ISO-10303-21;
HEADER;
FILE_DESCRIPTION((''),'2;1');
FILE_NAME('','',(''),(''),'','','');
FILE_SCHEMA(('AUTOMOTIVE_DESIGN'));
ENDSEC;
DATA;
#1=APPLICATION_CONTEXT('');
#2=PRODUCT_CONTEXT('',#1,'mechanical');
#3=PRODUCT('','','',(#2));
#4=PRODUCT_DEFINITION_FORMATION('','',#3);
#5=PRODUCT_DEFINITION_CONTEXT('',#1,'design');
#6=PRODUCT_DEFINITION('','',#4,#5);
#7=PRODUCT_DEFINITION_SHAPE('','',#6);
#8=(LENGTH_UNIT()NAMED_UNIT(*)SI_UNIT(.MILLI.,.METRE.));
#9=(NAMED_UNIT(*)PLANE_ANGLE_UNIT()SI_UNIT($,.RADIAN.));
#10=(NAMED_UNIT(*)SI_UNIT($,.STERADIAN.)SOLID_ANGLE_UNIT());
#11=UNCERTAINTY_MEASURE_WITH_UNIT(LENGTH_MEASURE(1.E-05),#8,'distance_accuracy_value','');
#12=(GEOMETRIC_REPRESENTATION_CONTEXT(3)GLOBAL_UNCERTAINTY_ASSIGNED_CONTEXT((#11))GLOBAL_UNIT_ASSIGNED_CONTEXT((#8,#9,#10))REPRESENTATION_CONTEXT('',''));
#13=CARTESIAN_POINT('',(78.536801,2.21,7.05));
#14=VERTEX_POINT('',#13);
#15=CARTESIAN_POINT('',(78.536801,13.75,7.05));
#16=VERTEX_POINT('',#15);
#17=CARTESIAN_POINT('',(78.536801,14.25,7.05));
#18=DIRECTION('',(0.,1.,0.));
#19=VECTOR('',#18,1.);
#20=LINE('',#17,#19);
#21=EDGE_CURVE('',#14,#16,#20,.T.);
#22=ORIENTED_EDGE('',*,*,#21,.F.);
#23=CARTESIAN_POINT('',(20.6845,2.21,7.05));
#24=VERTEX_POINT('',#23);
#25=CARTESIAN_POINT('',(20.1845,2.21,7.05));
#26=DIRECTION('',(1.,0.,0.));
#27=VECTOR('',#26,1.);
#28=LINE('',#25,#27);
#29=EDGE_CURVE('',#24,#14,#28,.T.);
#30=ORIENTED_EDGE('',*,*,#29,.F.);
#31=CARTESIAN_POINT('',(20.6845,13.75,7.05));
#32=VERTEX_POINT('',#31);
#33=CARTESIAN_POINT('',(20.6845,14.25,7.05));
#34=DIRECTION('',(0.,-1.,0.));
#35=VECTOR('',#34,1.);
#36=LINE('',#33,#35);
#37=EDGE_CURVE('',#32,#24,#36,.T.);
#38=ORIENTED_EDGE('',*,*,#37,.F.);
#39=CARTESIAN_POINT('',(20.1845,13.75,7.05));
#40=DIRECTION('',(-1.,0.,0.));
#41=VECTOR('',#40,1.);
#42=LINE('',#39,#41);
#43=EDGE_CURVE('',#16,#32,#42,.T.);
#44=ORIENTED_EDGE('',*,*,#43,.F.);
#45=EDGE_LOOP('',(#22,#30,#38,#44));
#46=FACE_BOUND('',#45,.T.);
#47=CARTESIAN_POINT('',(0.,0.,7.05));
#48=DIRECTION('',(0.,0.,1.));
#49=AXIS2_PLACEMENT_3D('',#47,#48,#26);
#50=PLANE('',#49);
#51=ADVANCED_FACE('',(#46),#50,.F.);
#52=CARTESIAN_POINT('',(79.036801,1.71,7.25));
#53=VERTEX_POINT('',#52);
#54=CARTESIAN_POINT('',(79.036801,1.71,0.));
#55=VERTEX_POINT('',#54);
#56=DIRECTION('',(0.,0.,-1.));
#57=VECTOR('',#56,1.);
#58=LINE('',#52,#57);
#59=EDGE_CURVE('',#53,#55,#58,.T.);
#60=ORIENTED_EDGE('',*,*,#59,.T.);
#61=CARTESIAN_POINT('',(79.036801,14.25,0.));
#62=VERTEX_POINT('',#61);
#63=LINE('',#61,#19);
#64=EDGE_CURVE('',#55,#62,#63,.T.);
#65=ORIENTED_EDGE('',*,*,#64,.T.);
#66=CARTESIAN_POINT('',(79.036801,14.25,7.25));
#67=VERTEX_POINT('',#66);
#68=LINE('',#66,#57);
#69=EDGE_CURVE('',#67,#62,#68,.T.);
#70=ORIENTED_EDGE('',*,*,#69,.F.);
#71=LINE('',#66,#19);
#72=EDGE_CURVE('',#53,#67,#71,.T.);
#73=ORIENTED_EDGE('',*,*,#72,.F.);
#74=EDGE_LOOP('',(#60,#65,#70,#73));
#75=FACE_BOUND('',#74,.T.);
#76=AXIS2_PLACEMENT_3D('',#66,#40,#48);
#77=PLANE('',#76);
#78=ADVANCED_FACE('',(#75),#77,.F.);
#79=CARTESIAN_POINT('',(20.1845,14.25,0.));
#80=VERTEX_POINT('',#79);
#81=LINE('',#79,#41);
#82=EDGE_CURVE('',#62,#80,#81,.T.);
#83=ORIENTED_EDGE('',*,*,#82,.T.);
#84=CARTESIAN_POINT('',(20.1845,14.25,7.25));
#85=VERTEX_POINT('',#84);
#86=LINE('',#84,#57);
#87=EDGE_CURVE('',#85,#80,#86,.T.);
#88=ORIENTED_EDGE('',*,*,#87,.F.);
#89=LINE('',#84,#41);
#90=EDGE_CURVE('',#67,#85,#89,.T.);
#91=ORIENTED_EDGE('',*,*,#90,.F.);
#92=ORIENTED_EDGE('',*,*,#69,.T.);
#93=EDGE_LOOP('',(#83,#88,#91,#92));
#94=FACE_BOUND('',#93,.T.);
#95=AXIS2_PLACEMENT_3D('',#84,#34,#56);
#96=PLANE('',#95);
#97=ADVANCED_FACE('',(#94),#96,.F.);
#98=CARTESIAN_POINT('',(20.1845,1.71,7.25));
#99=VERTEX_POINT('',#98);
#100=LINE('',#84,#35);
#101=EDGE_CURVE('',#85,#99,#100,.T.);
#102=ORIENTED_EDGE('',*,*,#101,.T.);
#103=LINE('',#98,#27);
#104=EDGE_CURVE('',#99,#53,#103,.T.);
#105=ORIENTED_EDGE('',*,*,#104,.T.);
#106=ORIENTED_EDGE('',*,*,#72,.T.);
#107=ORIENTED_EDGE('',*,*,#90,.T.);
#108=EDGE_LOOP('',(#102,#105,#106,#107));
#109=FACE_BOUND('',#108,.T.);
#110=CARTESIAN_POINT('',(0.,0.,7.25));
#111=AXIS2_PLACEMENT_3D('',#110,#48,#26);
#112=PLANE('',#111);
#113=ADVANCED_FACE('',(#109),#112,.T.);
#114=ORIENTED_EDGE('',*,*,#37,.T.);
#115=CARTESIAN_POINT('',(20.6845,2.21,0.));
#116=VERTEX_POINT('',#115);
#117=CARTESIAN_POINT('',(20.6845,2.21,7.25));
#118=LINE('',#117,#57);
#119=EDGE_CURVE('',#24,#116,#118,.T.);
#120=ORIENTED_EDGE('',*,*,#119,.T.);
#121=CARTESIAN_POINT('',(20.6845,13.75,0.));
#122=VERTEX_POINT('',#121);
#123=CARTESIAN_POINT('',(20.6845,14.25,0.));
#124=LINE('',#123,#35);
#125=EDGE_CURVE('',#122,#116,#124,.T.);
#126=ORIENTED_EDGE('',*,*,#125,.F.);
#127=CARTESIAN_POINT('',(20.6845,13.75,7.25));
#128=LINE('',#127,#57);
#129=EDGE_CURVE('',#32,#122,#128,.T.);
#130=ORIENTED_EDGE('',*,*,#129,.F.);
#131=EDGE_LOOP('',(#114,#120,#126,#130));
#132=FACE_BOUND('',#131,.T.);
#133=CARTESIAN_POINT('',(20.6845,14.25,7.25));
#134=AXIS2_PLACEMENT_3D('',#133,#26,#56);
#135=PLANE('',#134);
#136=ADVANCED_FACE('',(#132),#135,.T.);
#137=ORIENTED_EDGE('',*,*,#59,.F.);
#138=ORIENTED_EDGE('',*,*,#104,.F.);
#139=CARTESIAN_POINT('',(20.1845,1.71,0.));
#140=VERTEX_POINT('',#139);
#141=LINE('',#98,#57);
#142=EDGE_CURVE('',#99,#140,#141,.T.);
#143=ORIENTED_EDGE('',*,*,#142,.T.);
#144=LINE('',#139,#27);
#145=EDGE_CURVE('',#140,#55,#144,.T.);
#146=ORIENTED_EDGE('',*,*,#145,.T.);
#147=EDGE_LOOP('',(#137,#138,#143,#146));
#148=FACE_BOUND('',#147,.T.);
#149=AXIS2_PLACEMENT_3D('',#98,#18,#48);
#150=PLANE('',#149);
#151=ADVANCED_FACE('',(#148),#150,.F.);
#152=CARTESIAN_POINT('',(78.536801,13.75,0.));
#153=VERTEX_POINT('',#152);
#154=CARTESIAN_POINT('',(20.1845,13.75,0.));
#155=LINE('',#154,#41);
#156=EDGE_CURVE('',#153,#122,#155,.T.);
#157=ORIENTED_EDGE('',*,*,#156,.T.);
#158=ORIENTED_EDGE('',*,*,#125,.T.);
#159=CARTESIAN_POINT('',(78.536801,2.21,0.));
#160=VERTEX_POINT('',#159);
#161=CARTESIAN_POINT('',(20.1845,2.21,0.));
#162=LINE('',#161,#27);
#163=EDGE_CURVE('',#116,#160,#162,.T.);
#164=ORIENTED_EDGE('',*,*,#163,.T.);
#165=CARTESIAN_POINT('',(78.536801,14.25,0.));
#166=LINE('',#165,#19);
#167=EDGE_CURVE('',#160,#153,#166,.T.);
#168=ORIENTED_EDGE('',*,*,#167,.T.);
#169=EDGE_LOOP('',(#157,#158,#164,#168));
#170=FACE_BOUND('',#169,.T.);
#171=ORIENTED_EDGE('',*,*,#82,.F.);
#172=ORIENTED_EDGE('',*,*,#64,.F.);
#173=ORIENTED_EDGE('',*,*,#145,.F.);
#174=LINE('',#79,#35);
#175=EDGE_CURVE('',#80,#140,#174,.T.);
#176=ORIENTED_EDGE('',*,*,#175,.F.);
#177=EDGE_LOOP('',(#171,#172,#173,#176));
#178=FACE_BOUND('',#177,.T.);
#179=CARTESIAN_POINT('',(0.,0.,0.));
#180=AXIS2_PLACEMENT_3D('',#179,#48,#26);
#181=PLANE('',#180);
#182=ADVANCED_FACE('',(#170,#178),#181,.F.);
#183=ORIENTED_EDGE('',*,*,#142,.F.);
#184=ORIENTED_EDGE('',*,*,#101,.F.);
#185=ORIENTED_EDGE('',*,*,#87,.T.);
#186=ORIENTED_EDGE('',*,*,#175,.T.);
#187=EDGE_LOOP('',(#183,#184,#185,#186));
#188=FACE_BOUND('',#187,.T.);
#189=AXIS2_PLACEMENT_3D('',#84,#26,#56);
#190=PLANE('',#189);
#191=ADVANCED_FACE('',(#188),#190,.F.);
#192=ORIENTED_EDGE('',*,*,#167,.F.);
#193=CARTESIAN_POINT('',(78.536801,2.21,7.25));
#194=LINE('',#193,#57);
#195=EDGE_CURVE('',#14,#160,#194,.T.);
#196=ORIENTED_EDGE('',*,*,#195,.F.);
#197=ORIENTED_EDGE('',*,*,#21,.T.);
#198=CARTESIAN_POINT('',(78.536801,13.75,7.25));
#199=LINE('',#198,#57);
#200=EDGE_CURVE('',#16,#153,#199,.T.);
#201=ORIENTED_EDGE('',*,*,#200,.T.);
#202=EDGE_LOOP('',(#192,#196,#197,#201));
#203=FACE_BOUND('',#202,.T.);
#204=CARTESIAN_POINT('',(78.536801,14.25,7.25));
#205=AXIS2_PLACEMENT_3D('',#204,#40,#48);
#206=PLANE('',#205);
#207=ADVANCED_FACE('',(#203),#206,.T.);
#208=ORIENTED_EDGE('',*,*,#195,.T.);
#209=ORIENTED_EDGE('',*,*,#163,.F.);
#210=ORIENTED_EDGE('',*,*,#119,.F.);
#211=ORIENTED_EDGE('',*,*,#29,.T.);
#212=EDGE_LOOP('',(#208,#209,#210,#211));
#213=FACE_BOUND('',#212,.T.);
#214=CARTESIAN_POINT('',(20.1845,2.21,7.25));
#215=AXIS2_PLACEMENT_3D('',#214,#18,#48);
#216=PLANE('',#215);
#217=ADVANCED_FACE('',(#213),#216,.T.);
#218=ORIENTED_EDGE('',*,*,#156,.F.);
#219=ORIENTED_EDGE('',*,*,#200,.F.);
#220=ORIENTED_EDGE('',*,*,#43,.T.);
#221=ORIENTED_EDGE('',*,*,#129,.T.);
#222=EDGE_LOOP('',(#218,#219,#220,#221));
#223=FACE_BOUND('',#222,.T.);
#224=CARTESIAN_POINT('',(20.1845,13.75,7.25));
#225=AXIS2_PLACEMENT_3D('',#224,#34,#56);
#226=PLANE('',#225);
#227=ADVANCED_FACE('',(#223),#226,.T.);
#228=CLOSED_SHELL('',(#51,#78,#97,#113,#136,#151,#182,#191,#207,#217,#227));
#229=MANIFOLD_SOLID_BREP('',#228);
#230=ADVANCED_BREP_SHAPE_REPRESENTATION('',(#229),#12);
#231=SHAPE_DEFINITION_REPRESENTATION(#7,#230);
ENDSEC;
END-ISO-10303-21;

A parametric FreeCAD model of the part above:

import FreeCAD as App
import Part
import Sketcher
from FreeCAD import Vector


def faces_at(feature, points):
    """Names of the faces that lie closest to the given points."""
    faces = feature.Shape.Faces
    near = lambda p: min(range(len(faces)), key=lambda i: faces[i].distToShape(Part.Vertex(*p))[0])
    return sorted({f"Face{near(p) + 1}" for p in points})


def add_polygon(sketch, points):
    """Adds a closed chain of lines whose ends are joined by coincident constraints."""
    first, n = sketch.GeometryCount, len(points)
    for a, b in zip(points, points[1:] + points[:1]):
        sketch.addGeometry(Part.LineSegment(App.Vector(*a, 0), App.Vector(*b, 0)), False)
    for i in range(n):
        sketch.addConstraint(Sketcher.Constraint("Coincident", first + i, 2, first + (i + 1) % n, 1))

doc = App.newDocument("Part")
body = doc.addObject("PartDesign::Body", "Body")

sketch1 = body.newObject("Sketcher::SketchObject", "Sketch")
sketch1.AttachmentSupport = (doc.getObject("XY_Plane"), [""])
sketch1.MapMode = "FlatFace"
add_polygon(sketch1, [(20.1845, 14.25), (20.1845, 1.71), (79.036801, 1.71), (79.036801, 14.25)])
sketch1.addConstraint([
    Sketcher.Constraint("Vertical", 0),
    Sketcher.Constraint("Horizontal", 1),
    Sketcher.Constraint("Vertical", 2),
    Sketcher.Constraint("Horizontal", 3),
    Sketcher.Constraint("DistanceY", 0, 2, 0, 1, 12.54),
    Sketcher.Constraint("DistanceY", -1, 1, 0, 2, 1.71),
    Sketcher.Constraint("DistanceX", 1, 1, 1, 2, 58.852301),
    Sketcher.Constraint("DistanceX", -1, 1, 0, 2, 20.1845),
])
pad1 = body.newObject("PartDesign::Pad", "Pad")
pad1.Profile = sketch1
pad1.Length = 7.25
doc.recompute()

thickness = body.newObject("PartDesign::Thickness", "Thickness")
thickness.Base = (pad1, faces_at(pad1, [(49.611, 7.98, 0)]))
thickness.Value = 0.5
thickness.Reversed = True
thickness.Join = "Intersection"

sketch2 = body.newObject("Sketcher::SketchObject", "Sketch001")
sketch2.AttachmentSupport = (doc.getObject("XY_Plane"), [""])
sketch2.MapMode = "FlatFace"
sketch2.AttachmentOffset = App.Placement(Vector(0, 0, 6.75), App.Rotation())
add_polygon(sketch2, [(20.6845, 13.75), (20.6845, 2.21), (78.536801, 2.21), (78.536801, 13.75)])
sketch2.addConstraint([
    Sketcher.Constraint("Vertical", 0),
    Sketcher.Constraint("Horizontal", 1),
    Sketcher.Constraint("Vertical", 2),
    Sketcher.Constraint("Horizontal", 3),
    Sketcher.Constraint("DistanceY", 0, 2, 0, 1, 11.54),
    Sketcher.Constraint("DistanceY", -1, 1, 0, 2, 2.21),
    Sketcher.Constraint("DistanceX", 1, 1, 1, 2, 57.852301),
    Sketcher.Constraint("DistanceX", -1, 1, 0, 2, 20.6845),
])
pocket1 = body.newObject("PartDesign::Pocket", "Pocket")
pocket1.Profile = sketch2
pocket1.Length = 0.3
pocket1.Reversed = True

doc.recompute()
